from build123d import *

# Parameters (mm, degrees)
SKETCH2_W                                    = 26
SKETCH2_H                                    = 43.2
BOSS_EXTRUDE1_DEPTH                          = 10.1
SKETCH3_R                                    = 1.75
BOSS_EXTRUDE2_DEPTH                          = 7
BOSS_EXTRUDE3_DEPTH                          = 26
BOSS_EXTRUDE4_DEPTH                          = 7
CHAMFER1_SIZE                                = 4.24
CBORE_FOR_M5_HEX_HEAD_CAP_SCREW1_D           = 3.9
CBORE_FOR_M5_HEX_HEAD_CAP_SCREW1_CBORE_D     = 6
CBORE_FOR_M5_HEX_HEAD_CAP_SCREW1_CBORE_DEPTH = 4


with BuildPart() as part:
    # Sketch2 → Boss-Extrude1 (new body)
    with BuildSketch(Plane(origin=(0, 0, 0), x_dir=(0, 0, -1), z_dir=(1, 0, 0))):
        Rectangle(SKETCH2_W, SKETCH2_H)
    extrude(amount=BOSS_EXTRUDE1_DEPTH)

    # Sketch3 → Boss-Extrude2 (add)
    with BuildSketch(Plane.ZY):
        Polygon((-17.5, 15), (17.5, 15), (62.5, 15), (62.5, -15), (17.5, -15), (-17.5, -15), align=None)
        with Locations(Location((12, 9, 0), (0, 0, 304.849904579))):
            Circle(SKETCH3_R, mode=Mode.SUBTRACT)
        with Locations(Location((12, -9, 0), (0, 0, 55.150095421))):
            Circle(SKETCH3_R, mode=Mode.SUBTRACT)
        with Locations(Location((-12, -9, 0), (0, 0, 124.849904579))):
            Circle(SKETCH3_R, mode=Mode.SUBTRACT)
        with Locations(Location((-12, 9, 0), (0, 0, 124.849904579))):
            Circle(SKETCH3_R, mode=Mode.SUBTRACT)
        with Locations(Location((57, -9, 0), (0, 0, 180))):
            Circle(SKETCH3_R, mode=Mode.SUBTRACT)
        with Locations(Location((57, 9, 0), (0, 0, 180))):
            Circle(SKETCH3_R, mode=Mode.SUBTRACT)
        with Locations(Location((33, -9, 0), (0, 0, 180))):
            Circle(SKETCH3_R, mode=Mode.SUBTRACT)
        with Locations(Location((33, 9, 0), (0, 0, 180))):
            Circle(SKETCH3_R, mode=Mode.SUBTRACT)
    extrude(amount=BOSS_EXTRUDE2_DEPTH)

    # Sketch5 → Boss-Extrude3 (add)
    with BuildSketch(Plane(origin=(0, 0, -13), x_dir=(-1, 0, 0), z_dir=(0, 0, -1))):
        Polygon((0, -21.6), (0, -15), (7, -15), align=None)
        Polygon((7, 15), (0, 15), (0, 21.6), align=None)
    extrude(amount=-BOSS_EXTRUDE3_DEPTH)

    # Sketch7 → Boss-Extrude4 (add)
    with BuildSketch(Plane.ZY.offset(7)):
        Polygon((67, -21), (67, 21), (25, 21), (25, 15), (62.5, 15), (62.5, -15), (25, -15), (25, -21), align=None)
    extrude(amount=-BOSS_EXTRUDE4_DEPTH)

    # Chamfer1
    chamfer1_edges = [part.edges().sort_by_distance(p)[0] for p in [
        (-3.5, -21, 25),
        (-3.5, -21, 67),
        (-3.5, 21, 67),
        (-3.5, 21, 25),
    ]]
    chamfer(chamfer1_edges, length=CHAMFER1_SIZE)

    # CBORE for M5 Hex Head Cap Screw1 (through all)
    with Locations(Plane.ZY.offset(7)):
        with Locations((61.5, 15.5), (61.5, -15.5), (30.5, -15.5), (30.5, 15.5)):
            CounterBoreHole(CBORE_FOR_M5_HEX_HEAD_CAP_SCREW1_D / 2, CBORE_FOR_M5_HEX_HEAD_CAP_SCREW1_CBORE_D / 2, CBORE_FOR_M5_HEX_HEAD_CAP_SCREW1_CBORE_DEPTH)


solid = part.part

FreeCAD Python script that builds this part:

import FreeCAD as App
import Part
import Sketcher

V = App.Vector


def edges_at(feature, points):
    """Names of the edges that pass closest to the given points."""
    edges = feature.Shape.Edges
    near = lambda p: min(range(len(edges)), key=lambda i: edges[i].distToShape(Part.Vertex(*p))[0])
    return sorted({f"Edge{near(p) + 1}" for p in points})


def add_polygon(sketch, points):
    """Adds a closed chain of lines whose ends are joined by coincident constraints."""
    first, n = sketch.GeometryCount, len(points)
    for a, b in zip(points, points[1:] + points[:1]):
        sketch.addGeometry(Part.LineSegment(App.Vector(*a, 0), App.Vector(*b, 0)), False)
    for i in range(n):
        sketch.addConstraint(Sketcher.Constraint("Coincident", first + i, 2, first + (i + 1) % n, 1))

doc = App.newDocument("Part")
body = doc.addObject("PartDesign::Body", "Body")

# Sketch on YZ plane
sketch1 = body.newObject("Sketcher::SketchObject", "Sketch")
sketch1.AttachmentSupport = (doc.getObject("YZ_Plane"), [""])
sketch1.MapMode = "FlatFace"
add_polygon(sketch1, [(21.6, 13), (-21.6, 13), (-21.6, -13), (21.6, -13)])  # lines 0-3
sketch1.addConstraint(Sketcher.Constraint("Horizontal", 0))
sketch1.addConstraint(Sketcher.Constraint("Vertical", 1))
sketch1.addConstraint(Sketcher.Constraint("Horizontal", 2))
sketch1.addConstraint(Sketcher.Constraint("Vertical", 3))
sketch1.addConstraint(Sketcher.Constraint("Symmetric", 0, 2, 2, 2, -1, 1))
sketch1.addConstraint(Sketcher.Constraint("DistanceY", 1, 2, 1, 1, 26.0))
sketch1.addConstraint(Sketcher.Constraint("DistanceX", 0, 2, 0, 1, 43.2))
pad1 = body.newObject("PartDesign::Pad", "Pad")
pad1.Profile = sketch1
pad1.Length = 10.1

# Sketch on YZ plane
sketch2 = body.newObject("Sketcher::SketchObject", "Sketch001")
sketch2.AttachmentSupport = (doc.getObject("YZ_Plane"), [""])
sketch2.MapMode = "FlatFace"
add_polygon(sketch2, [(15, 62.5), (15, -17.5), (-15, -17.5), (-15, 62.5)])  # lines 0-3
sketch2.addGeometry(Part.Circle(V(-9, 57, 0), V(0, 0, 1), 1.75), False)  # 4
sketch2.addGeometry(Part.Circle(V(-9, 33, 0), V(0, 0, 1), 1.75), False)  # 5
sketch2.addGeometry(Part.Circle(V(-9, 12, 0), V(0, 0, 1), 1.75), False)  # 6
sketch2.addGeometry(Part.Circle(V(-9, -12, 0), V(0, 0, 1), 1.75), False)  # 7
sketch2.addGeometry(Part.Circle(V(9, 57, 0), V(0, 0, 1), 1.75), False)  # 8
sketch2.addGeometry(Part.Circle(V(9, 33, 0), V(0, 0, 1), 1.75), False)  # 9
sketch2.addGeometry(Part.Circle(V(9, 12, 0), V(0, 0, 1), 1.75), False)  # 10
sketch2.addGeometry(Part.Circle(V(9, -12, 0), V(0, 0, 1), 1.75), False)  # 11
sketch2.addConstraint(Sketcher.Constraint("Vertical", 0))
sketch2.addConstraint(Sketcher.Constraint("Horizontal", 1))
sketch2.addConstraint(Sketcher.Constraint("Vertical", 2))
sketch2.addConstraint(Sketcher.Constraint("Horizontal", 3))
sketch2.addConstraint(Sketcher.Constraint("Equal", 4, 5))
sketch2.addConstraint(Sketcher.Constraint("Equal", 5, 6))
sketch2.addConstraint(Sketcher.Constraint("Equal", 6, 7))
sketch2.addConstraint(Sketcher.Constraint("Equal", 7, 8))
sketch2.addConstraint(Sketcher.Constraint("Equal", 8, 9))
sketch2.addConstraint(Sketcher.Constraint("Equal", 9, 10))
sketch2.addConstraint(Sketcher.Constraint("Equal", 10, 11))
sketch2.addConstraint(Sketcher.Constraint("Symmetric", 7, 3, 10, 3, -1, 1))
sketch2.addConstraint(Sketcher.Constraint("Symmetric", 6, 3, 11, 3, -1, 1))
sketch2.addConstraint(Sketcher.Constraint("Symmetric", 4, 3, 8, 3, -2))
sketch2.addConstraint(Sketcher.Constraint("Symmetric", 5, 3, 9, 3, -2))
sketch2.addConstraint(Sketcher.Constraint("Symmetric", 6, 3, 10, 3, -2))
sketch2.addConstraint(Sketcher.Constraint("Vertical", 4, 3, 5, 3))
sketch2.addConstraint(Sketcher.Constraint("Vertical", 5, 3, 6, 3))
sketch2.addConstraint(Sketcher.Constraint("Diameter", 4, 3.5))
sketch2.addConstraint(Sketcher.Constraint("DistanceX", 1, 2, 1, 1, 30.0))
sketch2.addConstraint(Sketcher.Constraint("DistanceY", 0, 2, 0, 1, 80.0))
sketch2.addConstraint(Sketcher.Constraint("DistanceX", 4, 3, -1, 1, 9.0))
sketch2.addConstraint(Sketcher.Constraint("DistanceY", -1, 1, 4, 3, 57.0))
sketch2.addConstraint(Sketcher.Constraint("DistanceY", -1, 1, 5, 3, 33.0))
sketch2.addConstraint(Sketcher.Constraint("DistanceY", -1, 1, 6, 3, 12.0))
sketch2.addConstraint(Sketcher.Constraint("DistanceX", -1, 1, 0, 2, 15.0))
sketch2.addConstraint(Sketcher.Constraint("DistanceY", 0, 2, -1, 1, 17.5))
pad2 = body.newObject("PartDesign::Pad", "Pad001")
pad2.Profile = sketch2
pad2.Length = 7
pad2.Reversed = True

# Sketch on XY plane
sketch3 = body.newObject("Sketcher::SketchObject", "Sketch002")
sketch3.AttachmentSupport = (doc.getObject("XY_Plane"), [""])
sketch3.MapMode = "FlatFace"
sketch3.AttachmentOffset = App.Placement(V(0, 0, -13), App.Rotation())
add_polygon(sketch3, [(0, -15), (0, -21.6), (-7, -15)])  # lines 0-2
add_polygon(sketch3, [(0, 15), (-7, 15), (0, 21.6)])  # lines 3-5
sketch3.addConstraint(Sketcher.Constraint("Vertical", 0))
sketch3.addConstraint(Sketcher.Constraint("Horizontal", 2))
sketch3.addConstraint(Sketcher.Constraint("Horizontal", 3))
sketch3.addConstraint(Sketcher.Constraint("Vertical", 5))
sketch3.addConstraint(Sketcher.Constraint("Symmetric", 0, 2, 4, 2, -1, 1))
sketch3.addConstraint(Sketcher.Constraint("Symmetric", 1, 2, 3, 2, -1))
sketch3.addConstraint(Sketcher.Constraint("PointOnObject", 0, 2, -2))
sketch3.addConstraint(Sketcher.Constraint("DistanceX", 2, 1, 2, 2, 7.0))
sketch3.addConstraint(Sketcher.Constraint("DistanceY", 0, 2, 0, 1, 6.6))
sketch3.addConstraint(Sketcher.Constraint("DistanceY", 1, 2, -1, 1, 15.0))
pad3 = body.newObject("PartDesign::Pad", "Pad002")
pad3.Profile = sketch3
pad3.Length = 26

# Sketch on YZ plane
sketch4 = body.newObject("Sketcher::SketchObject", "Sketch003")
sketch4.AttachmentSupport = (doc.getObject("YZ_Plane"), [""])
sketch4.MapMode = "FlatFace"
sketch4.AttachmentOffset = App.Placement(V(0, 0, -7), App.Rotation())
add_polygon(sketch4, [(-21, 67), (21, 67), (21, 25), (15, 25), (15, 62.5), (-15, 62.5), (-15, 25), (-21, 25)])  # lines 0-7
sketch4.addConstraint(Sketcher.Constraint("Horizontal", 0))
sketch4.addConstraint(Sketcher.Constraint("Vertical", 1))
sketch4.addConstraint(Sketcher.Constraint("Horizontal", 2))
sketch4.addConstraint(Sketcher.Constraint("Vertical", 3))
sketch4.addConstraint(Sketcher.Constraint("Horizontal", 4))
sketch4.addConstraint(Sketcher.Constraint("Vertical", 5))
sketch4.addConstraint(Sketcher.Constraint("Horizontal", 6))
sketch4.addConstraint(Sketcher.Constraint("Vertical", 7))
sketch4.addConstraint(Sketcher.Constraint("Symmetric", 2, 2, 5, 2, -2))
sketch4.addConstraint(Sketcher.Constraint("Equal", 2, 6))
sketch4.addConstraint(Sketcher.Constraint("Equal", 0, 1))
sketch4.addConstraint(Sketcher.Constraint("DistanceX", 0, 1, 0, 2, 42.0))
sketch4.addConstraint(Sketcher.Constraint("DistanceX", 2, 2, 2, 1, 6.0))
sketch4.addConstraint(Sketcher.Constraint("DistanceY", 3, 1, 3, 2, 37.5))
sketch4.addConstraint(Sketcher.Constraint("DistanceY", -1, 1, 0, 2, 67.0))
pad4 = body.newObject("PartDesign::Pad", "Pad003")
pad4.Profile = sketch4
pad4.Length = 7
doc.recompute()

chamfer = body.newObject("PartDesign::Chamfer", "Chamfer")
chamfer.Base = (pad4, edges_at(pad4, [
    (-3.5, -21, 25),
    (-3.5, -21, 67),
    (-3.5, 21, 67),
    (-3.5, 21, 25),
]))
chamfer.Size = 4.24

# Sketch on YZ plane
sketch5 = body.newObject("Sketcher::SketchObject", "Sketch004")
sketch5.AttachmentSupport = (doc.getObject("YZ_Plane"), [""])
sketch5.MapMode = "FlatFace"
sketch5.AttachmentOffset = App.Placement(V(0, 0, -7), App.Rotation())
sketch5.addGeometry(Part.Circle(V(15.5, 61.5, 0), V(0, 0, 1), 1.95), False)
sketch5.addGeometry(Part.Circle(V(-15.5, 61.5, 0), V(0, 0, 1), 1.95), False)
sketch5.addGeometry(Part.Circle(V(-15.5, 30.5, 0), V(0, 0, 1), 1.95), False)
sketch5.addGeometry(Part.Circle(V(15.5, 30.5, 0), V(0, 0, 1), 1.95), False)
sketch5.addConstraint(Sketcher.Constraint("Equal", 0, 1))
sketch5.addConstraint(Sketcher.Constraint("Equal", 1, 2))
sketch5.addConstraint(Sketcher.Constraint("Equal", 2, 3))
sketch5.addConstraint(Sketcher.Constraint("Symmetric", 0, 3, 1, 3, -2))
sketch5.addConstraint(Sketcher.Constraint("Symmetric", 2, 3, 3, 3, -2))
sketch5.addConstraint(Sketcher.Constraint("Vertical", 1, 3, 2, 3))
sketch5.addConstraint(Sketcher.Constraint("Diameter", 0, 3.9))
sketch5.addConstraint(Sketcher.Constraint("DistanceX", 1, 3, 0, 3, 31.0))
sketch5.addConstraint(Sketcher.Constraint("DistanceY", 2, 3, 1, 3, 31.0))
sketch5.addConstraint(Sketcher.Constraint("DistanceY", -1, 1, 0, 3, 61.5))
doc.recompute()
hole = body.newObject("PartDesign::Hole", "Hole")
hole.Profile = sketch5
hole.ThreadType = "None"
hole.Diameter = 3.9
hole.DepthType = "ThroughAll"
hole.HoleCutType = "Counterbore"
hole.HoleCutDiameter = 6
hole.HoleCutDepth = 4
hole.Reversed = True

doc.recompute()
